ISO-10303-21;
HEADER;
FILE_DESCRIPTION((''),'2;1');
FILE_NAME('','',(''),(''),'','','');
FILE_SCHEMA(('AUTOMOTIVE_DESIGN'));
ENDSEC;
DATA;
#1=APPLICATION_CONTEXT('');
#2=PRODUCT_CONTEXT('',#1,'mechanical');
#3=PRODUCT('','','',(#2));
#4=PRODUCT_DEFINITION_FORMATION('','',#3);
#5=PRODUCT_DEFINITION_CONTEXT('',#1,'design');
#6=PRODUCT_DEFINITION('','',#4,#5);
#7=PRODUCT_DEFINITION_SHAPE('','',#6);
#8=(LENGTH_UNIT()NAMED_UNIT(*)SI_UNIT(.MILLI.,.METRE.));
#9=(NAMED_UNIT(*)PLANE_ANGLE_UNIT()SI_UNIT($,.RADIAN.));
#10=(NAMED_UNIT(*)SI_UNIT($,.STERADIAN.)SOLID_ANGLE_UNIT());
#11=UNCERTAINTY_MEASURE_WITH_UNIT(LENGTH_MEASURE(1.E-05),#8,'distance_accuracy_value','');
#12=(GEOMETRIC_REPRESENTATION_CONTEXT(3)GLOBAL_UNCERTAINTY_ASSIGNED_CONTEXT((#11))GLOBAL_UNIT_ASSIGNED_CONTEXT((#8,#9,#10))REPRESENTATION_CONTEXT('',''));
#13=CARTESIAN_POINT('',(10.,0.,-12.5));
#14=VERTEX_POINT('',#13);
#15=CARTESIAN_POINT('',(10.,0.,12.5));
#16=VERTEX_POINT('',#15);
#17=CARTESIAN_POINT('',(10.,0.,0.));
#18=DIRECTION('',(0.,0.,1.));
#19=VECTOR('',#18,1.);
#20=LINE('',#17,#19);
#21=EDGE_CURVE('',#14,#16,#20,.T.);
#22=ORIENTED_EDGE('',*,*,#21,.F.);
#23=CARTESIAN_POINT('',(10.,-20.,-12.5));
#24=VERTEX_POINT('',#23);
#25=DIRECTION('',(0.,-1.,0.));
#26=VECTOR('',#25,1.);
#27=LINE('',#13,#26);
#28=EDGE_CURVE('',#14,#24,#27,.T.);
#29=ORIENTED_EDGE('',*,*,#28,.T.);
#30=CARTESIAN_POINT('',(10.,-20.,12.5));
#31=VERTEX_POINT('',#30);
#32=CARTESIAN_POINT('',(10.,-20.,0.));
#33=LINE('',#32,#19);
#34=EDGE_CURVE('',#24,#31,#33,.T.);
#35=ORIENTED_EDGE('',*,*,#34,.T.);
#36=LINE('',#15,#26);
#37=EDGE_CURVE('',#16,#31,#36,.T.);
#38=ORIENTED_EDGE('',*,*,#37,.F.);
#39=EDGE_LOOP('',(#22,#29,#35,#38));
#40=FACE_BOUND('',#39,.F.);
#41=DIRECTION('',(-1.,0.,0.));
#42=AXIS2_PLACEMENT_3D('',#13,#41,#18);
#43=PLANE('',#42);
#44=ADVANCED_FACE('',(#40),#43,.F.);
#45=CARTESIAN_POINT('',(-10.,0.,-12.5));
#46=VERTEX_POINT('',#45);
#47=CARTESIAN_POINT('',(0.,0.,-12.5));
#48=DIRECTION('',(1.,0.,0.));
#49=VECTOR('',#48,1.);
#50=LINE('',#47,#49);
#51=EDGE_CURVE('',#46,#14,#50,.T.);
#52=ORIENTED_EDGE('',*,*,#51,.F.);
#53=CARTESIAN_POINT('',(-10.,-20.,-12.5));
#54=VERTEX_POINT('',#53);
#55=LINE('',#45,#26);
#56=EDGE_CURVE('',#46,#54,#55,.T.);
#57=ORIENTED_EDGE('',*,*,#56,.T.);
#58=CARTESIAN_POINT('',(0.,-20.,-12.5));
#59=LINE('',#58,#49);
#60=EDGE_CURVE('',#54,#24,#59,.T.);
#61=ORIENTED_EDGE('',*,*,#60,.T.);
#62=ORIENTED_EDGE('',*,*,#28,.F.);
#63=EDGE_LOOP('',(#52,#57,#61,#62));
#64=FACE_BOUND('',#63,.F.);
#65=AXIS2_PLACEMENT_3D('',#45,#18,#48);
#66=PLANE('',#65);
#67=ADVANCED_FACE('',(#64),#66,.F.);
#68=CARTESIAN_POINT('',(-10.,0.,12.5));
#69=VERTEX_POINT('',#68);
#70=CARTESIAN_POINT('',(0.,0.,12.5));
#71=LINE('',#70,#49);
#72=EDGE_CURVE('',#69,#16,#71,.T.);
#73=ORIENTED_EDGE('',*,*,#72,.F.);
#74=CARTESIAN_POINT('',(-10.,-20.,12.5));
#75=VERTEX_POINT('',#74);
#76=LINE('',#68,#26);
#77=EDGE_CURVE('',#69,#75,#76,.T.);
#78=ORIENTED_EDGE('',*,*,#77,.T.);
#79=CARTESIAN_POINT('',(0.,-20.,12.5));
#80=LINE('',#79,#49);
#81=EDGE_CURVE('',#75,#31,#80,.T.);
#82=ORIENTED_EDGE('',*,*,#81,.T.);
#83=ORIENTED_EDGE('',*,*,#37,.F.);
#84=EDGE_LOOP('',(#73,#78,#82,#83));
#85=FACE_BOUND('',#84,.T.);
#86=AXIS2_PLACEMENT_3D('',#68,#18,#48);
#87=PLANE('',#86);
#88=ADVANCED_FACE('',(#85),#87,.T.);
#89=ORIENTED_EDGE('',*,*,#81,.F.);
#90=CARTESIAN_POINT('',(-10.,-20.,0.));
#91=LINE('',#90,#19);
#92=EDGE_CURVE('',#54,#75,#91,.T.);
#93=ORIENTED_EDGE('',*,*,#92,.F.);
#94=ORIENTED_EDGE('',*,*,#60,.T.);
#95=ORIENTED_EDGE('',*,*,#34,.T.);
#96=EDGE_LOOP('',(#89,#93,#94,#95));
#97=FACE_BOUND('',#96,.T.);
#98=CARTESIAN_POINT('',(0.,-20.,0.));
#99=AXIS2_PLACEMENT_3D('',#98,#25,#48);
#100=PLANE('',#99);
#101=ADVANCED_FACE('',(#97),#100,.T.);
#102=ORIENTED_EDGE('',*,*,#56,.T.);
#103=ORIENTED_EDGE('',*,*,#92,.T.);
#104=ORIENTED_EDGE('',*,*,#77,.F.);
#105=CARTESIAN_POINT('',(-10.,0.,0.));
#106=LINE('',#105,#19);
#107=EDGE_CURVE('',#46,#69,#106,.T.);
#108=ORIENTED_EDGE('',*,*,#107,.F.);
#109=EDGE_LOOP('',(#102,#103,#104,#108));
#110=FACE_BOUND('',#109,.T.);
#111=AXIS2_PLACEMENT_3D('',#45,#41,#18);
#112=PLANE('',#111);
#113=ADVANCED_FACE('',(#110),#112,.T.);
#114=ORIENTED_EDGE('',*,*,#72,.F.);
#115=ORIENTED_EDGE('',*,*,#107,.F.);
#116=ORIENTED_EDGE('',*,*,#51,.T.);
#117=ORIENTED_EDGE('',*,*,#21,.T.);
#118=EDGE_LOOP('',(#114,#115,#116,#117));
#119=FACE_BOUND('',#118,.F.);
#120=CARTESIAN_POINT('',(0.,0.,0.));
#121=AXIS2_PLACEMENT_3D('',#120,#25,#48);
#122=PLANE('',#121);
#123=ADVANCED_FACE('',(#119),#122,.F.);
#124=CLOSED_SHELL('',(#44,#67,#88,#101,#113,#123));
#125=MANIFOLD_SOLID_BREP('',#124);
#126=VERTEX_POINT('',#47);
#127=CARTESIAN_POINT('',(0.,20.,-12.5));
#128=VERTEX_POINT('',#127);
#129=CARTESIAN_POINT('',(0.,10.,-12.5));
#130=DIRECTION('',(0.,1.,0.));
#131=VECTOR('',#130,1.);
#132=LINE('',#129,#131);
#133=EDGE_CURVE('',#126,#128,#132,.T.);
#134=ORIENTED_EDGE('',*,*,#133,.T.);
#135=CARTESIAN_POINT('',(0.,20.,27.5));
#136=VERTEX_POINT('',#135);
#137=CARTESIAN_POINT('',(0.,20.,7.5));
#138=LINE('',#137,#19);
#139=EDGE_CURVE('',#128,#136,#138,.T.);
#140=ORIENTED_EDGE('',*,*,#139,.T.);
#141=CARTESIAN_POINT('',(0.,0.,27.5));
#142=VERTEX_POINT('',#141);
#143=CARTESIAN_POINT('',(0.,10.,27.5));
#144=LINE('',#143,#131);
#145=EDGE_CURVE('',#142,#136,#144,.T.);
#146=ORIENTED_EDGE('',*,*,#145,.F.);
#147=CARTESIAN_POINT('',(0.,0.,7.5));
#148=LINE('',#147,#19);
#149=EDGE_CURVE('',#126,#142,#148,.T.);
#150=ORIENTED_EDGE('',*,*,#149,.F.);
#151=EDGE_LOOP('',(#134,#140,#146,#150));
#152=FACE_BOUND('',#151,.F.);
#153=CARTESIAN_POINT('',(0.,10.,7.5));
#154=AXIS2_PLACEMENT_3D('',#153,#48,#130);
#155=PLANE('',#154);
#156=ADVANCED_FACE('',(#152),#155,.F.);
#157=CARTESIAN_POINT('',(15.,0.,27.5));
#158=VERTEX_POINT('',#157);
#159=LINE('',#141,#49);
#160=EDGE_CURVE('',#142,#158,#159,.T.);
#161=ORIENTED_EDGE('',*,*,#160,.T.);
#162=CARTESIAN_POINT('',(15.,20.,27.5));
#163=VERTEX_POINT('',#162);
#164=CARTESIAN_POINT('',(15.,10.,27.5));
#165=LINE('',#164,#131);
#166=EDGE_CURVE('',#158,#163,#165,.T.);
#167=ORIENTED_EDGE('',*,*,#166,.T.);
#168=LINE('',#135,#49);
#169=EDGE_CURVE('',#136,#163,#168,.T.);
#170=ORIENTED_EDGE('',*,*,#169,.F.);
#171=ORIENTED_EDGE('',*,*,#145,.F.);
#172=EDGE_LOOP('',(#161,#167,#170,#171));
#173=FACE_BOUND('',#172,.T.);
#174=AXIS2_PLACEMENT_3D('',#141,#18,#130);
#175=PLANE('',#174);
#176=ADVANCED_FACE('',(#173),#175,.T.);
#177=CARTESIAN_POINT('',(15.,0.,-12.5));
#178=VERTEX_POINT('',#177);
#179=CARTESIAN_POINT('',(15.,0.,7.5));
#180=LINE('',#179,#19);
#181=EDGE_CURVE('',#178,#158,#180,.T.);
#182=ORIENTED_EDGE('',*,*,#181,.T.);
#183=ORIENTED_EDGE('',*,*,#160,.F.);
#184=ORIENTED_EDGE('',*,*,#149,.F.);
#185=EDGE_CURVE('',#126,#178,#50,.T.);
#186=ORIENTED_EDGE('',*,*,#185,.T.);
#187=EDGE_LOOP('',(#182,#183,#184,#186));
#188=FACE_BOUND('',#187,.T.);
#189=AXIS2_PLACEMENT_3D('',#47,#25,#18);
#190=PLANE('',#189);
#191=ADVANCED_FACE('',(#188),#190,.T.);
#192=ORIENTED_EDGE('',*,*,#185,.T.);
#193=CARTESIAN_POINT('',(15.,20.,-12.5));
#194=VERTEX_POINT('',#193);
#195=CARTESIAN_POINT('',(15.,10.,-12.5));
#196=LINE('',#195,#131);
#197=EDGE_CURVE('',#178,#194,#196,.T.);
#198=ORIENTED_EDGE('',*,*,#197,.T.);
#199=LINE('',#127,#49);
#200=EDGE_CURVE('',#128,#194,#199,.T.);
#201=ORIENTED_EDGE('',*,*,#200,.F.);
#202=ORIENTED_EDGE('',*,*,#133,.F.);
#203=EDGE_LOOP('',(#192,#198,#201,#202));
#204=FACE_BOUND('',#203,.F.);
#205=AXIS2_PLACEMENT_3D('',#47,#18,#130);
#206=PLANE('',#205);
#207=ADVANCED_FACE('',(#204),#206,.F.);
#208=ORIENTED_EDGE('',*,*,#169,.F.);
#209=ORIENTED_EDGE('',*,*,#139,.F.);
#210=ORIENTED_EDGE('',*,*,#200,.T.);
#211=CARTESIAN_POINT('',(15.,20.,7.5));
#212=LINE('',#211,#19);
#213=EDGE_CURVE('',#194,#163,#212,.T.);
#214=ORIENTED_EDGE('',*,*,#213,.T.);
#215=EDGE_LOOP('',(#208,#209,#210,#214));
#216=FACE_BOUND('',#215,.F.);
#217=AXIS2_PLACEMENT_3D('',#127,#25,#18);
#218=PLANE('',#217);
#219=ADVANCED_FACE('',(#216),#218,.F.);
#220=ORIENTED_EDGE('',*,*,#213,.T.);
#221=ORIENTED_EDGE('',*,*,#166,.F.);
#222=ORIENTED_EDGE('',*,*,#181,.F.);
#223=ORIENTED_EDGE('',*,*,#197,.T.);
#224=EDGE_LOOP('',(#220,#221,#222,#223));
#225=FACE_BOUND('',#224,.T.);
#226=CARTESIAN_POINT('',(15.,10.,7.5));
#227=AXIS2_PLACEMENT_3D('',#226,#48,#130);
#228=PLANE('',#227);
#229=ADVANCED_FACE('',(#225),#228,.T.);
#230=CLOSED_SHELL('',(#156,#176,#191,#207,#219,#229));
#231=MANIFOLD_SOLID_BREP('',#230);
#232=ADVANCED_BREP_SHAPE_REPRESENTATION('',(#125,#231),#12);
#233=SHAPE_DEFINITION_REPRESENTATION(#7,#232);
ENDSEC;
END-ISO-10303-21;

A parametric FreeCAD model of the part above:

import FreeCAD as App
import Part
import Sketcher

V = App.Vector
Q = App.Units.Quantity

doc = App.newDocument("Part")
body = doc.addObject("PartDesign::Body", "Body")

sketch1 = doc.addObject("Sketcher::SketchObject", "Sketch")
body.addObject(sketch1)
sketch1.AttachmentSupport = (doc.XZ_Plane, [""])
sketch1.MapMode = "FlatFace"
sketch1.addGeometry([
    Part.LineSegment(V(-10, 12.5, 0), V(-10, -12.5, 0)),
    Part.LineSegment(V(-10, -12.5, 0), V(10, -12.5, 0)),
    Part.LineSegment(V(10, -12.5, 0), V(10, 12.5, 0)),
    Part.LineSegment(V(10, 12.5, 0), V(-10, 12.5, 0)),
], False)
sketch1.addConstraint([
    Sketcher.Constraint("Coincident", 0, 2, 1, 1),
    Sketcher.Constraint("Coincident", 1, 2, 2, 1),
    Sketcher.Constraint("Coincident", 2, 2, 3, 1),
    Sketcher.Constraint("Coincident", 3, 2, 0, 1),
    Sketcher.Constraint("Vertical", 0),
    Sketcher.Constraint("Horizontal", 1),
    Sketcher.Constraint("Vertical", 2),
    Sketcher.Constraint("Horizontal", 3),
    Sketcher.Constraint("Symmetric", 0, 2, 2, 2, -1, 1),
    Sketcher.Constraint("DistanceX", 1, 1, 1, 2, Q("20 mm")),
    Sketcher.Constraint("DistanceY", 0, 2, 0, 1, Q("25 mm")),
])
pad1 = doc.addObject("PartDesign::Pad", "Pad")
body.addObject(pad1)
pad1.Profile = sketch1
pad1.Length = 20
body2 = doc.addObject("PartDesign::Body", "Body001")

sketch2 = doc.addObject("Sketcher::SketchObject", "Sketch001")
body2.addObject(sketch2)
sketch2.AttachmentSupport = (doc.getObject("YZ_Plane001"), [""])
sketch2.MapMode = "FlatFace"
sketch2.addGeometry([
    Part.LineSegment(V(0, 27.5, 0), V(0, -12.5, 0)),
    Part.LineSegment(V(0, -12.5, 0), V(20, -12.5, 0)),
    Part.LineSegment(V(20, -12.5, 0), V(20, 27.5, 0)),
    Part.LineSegment(V(20, 27.5, 0), V(0, 27.5, 0)),
], False)
sketch2.addConstraint([
    Sketcher.Constraint("Coincident", 0, 2, 1, 1),
    Sketcher.Constraint("Coincident", 1, 2, 2, 1),
    Sketcher.Constraint("Coincident", 2, 2, 3, 1),
    Sketcher.Constraint("Coincident", 3, 2, 0, 1),
    Sketcher.Constraint("Vertical", 0),
    Sketcher.Constraint("Horizontal", 1),
    Sketcher.Constraint("Vertical", 2),
    Sketcher.Constraint("Horizontal", 3),
    Sketcher.Constraint("PointOnObject", 0, 2, -2),
    Sketcher.Constraint("DistanceX", 1, 1, 1, 2, Q("20 mm")),
    Sketcher.Constraint("DistanceY", 0, 2, 0, 1, Q("40 mm")),
    Sketcher.Constraint("DistanceY", 0, 2, -1, 1, Q("12.5 mm")),
])
pad2 = doc.addObject("PartDesign::Pad", "Pad001")
body2.addObject(pad2)
pad2.Profile = sketch2
pad2.Length = 15

doc.recompute()
